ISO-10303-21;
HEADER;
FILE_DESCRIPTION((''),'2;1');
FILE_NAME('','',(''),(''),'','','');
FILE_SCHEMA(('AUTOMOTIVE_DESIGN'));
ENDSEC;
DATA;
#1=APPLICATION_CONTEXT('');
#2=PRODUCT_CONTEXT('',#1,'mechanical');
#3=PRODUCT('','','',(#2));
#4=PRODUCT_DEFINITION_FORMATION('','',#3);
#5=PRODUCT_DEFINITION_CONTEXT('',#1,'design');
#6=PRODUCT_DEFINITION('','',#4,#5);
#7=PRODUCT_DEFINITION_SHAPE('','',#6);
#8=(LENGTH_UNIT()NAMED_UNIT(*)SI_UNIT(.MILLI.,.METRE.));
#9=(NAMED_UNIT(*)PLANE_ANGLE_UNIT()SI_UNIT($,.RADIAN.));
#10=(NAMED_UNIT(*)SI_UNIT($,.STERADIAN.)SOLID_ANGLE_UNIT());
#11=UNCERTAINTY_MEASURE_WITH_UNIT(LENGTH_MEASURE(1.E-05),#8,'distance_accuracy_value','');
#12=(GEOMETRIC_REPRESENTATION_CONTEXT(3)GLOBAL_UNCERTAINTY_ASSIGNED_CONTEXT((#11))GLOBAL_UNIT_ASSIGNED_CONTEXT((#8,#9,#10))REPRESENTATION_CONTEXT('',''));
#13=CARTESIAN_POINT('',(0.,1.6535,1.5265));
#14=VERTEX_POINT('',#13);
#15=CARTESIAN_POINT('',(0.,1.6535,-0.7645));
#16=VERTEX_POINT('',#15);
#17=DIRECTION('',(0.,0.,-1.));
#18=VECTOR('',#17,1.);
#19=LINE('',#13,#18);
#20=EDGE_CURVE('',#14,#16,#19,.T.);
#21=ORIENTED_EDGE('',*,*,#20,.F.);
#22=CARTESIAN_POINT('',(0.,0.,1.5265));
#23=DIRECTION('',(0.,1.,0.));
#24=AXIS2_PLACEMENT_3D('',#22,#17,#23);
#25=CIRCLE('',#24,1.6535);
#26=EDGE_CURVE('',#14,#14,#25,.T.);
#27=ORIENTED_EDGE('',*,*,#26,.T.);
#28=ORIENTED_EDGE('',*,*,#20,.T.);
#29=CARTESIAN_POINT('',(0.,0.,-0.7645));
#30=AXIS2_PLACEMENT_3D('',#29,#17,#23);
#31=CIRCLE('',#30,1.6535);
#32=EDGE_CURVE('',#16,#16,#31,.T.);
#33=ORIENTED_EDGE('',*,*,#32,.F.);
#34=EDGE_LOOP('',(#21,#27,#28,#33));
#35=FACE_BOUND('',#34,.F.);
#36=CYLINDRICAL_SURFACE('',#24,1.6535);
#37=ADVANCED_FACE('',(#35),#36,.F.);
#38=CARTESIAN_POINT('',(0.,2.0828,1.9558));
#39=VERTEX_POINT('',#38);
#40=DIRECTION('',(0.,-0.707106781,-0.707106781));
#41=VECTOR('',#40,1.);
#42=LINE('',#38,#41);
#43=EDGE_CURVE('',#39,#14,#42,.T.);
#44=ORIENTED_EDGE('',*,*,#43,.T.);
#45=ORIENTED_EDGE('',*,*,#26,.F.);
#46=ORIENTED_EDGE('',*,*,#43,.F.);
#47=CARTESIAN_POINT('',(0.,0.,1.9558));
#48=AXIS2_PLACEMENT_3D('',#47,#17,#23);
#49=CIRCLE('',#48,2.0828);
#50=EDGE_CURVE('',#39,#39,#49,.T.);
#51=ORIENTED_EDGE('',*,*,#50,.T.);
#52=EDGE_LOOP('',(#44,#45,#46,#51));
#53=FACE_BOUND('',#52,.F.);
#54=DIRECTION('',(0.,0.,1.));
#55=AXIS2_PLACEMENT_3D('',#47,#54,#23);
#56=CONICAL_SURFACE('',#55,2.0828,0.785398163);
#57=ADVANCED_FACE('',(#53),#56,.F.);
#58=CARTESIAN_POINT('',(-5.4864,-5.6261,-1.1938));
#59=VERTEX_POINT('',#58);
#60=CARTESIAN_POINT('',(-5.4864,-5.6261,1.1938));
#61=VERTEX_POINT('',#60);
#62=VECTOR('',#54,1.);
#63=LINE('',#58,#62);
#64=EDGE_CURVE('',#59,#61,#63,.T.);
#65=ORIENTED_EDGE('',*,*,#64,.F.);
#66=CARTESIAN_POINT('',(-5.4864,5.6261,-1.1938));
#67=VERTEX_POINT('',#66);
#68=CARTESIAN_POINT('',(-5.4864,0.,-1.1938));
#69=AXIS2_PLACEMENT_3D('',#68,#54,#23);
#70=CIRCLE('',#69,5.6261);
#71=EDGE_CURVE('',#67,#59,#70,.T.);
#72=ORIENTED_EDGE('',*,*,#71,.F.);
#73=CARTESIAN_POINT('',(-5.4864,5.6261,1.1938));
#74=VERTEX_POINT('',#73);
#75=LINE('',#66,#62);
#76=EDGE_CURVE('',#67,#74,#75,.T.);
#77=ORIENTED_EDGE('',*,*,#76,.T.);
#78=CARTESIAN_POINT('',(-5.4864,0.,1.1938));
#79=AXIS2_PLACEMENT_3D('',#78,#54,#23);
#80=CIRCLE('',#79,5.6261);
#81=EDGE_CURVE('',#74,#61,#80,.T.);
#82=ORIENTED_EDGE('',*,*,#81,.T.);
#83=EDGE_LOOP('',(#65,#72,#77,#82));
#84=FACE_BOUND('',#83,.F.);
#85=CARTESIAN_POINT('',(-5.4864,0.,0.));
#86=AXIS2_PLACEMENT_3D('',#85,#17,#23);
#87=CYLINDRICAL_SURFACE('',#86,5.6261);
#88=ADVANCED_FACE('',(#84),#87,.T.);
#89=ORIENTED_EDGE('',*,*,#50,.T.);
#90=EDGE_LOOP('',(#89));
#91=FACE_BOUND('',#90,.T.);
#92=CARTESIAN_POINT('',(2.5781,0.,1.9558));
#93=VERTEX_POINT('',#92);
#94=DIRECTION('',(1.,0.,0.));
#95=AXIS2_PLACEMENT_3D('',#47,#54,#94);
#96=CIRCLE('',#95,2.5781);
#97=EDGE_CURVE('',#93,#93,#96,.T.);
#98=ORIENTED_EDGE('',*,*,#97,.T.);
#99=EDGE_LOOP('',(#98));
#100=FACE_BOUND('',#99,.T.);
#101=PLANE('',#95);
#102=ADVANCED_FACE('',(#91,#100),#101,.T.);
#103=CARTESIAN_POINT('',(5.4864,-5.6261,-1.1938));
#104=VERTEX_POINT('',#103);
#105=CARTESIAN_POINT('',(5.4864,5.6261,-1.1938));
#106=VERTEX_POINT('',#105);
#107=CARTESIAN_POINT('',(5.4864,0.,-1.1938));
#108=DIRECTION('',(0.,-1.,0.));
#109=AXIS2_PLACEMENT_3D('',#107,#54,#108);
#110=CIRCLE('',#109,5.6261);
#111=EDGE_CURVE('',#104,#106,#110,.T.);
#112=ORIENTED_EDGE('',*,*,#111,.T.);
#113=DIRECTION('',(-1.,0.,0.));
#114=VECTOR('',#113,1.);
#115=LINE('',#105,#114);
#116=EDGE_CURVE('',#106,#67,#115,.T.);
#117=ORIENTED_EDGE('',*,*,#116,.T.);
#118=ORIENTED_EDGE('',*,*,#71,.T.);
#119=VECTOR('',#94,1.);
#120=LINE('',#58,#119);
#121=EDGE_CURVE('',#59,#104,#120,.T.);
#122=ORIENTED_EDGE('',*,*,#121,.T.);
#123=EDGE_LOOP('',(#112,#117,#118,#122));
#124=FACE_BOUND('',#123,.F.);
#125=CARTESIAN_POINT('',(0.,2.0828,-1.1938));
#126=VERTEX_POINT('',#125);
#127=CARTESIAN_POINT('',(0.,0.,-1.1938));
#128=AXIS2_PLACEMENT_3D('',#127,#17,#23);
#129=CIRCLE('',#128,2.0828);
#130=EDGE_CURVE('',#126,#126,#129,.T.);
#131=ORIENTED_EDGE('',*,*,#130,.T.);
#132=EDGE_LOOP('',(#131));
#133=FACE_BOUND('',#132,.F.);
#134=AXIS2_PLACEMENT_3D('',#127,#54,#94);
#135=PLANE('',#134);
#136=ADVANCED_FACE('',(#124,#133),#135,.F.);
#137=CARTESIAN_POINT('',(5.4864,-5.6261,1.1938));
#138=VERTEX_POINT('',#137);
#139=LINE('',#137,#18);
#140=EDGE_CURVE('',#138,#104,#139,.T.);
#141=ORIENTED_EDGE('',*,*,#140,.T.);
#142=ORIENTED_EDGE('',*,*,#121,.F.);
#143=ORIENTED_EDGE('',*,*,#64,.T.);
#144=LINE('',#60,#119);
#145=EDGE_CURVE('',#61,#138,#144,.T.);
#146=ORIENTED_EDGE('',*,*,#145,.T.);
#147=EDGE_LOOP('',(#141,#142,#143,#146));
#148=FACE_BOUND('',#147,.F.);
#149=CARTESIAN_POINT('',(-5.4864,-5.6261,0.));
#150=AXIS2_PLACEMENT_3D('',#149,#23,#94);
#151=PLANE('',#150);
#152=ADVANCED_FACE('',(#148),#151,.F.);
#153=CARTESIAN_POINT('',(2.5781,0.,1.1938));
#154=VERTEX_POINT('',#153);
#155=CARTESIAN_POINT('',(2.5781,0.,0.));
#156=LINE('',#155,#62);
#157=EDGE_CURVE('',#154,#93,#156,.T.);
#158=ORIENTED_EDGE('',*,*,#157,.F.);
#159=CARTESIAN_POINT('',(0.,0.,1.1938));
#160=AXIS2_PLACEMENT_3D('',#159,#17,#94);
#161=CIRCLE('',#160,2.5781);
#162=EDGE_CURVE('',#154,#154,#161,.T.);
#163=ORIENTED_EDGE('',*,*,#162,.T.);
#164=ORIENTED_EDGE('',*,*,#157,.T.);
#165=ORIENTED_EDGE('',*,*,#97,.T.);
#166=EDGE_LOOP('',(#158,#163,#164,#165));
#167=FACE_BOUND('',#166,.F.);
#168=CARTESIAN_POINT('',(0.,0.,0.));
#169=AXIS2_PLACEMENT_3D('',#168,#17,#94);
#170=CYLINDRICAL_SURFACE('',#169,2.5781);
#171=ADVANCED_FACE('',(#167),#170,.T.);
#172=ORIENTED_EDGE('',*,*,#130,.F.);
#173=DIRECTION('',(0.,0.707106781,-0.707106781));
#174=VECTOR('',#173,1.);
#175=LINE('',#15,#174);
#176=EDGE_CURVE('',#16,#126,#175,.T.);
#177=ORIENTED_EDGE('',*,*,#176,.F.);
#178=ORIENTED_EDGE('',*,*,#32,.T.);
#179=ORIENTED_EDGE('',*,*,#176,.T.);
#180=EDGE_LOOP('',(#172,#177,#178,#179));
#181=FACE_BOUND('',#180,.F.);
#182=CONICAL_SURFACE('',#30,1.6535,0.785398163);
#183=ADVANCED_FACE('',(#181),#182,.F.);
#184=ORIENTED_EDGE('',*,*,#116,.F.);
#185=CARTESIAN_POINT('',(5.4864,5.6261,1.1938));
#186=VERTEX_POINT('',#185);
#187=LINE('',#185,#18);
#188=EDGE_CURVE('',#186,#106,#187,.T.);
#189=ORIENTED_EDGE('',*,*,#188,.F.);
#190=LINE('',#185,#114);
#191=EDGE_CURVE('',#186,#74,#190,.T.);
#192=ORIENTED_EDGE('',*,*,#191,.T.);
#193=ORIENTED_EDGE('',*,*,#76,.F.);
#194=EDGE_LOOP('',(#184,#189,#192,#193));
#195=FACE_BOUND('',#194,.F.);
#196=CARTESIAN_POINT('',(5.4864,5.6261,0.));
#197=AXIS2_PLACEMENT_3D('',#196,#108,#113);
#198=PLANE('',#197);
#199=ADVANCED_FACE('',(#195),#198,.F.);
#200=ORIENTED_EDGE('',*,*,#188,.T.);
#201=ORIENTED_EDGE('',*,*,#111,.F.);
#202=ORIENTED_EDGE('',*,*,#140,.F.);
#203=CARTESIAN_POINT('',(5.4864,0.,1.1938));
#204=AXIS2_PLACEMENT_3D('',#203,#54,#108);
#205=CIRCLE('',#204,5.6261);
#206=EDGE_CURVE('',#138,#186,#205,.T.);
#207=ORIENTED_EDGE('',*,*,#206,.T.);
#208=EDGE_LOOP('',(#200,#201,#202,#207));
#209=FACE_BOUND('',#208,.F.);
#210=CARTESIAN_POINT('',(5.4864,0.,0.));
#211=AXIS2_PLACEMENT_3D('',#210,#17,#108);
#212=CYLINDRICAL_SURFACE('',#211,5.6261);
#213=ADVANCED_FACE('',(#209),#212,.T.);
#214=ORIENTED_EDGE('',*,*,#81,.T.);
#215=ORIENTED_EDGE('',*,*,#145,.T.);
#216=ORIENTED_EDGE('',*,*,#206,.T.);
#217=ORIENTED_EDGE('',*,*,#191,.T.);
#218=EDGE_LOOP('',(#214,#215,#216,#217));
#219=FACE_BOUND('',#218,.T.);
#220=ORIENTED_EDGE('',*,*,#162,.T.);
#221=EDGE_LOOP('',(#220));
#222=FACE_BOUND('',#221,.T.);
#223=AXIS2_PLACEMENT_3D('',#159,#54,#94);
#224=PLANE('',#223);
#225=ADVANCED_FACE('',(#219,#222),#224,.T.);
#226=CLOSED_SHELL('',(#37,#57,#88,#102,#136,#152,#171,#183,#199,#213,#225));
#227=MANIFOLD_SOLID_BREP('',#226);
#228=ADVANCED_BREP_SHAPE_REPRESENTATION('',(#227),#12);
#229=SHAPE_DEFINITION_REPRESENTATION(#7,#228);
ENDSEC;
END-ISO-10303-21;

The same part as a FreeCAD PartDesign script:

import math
import FreeCAD as App
import Part
import Sketcher
from FreeCAD import Vector
Q = App.Units.Quantity


def add_polygon(sketch, points):
    """Adds a closed chain of lines whose ends are joined by coincident constraints."""
    first, n = sketch.GeometryCount, len(points)
    for a, b in zip(points, points[1:] + points[:1]):
        sketch.addGeometry(Part.LineSegment(App.Vector(*a, 0), App.Vector(*b, 0)), False)
    for i in range(n):
        sketch.addConstraint(Sketcher.Constraint("Coincident", first + i, 2, first + (i + 1) % n, 1))

doc = App.newDocument("Part")
body = doc.addObject("PartDesign::Body", "Body")

sketch1 = body.newObject("Sketcher::SketchObject", "Sketch")
sketch1.AttachmentSupport = (doc.getObject("XY_Plane"), [""])
sketch1.MapMode = "FlatFace"
sketch1.addGeometry([
    Part.LineSegment(Vector(5, 6, 0), Vector(-5, 6, 0)),
    Part.ArcOfCircle(Part.Circle(Vector(-5, 0, 0), Vector(0, 0, 1), 6), math.radians(90), math.radians(270)),
    Part.LineSegment(Vector(-5, -6, 0), Vector(5, -6, 0)),
    Part.ArcOfCircle(Part.Circle(Vector(5, 0, 0), Vector(0, 0, 1), 6), math.radians(-90), math.radians(90)),
], False)
sketch1.addConstraint([
    Sketcher.Constraint("Tangent", 0, 2, 1, 1),
    Sketcher.Constraint("Tangent", 1, 2, 2, 1),
    Sketcher.Constraint("Tangent", 2, 2, 3, 1),
    Sketcher.Constraint("Tangent", 3, 2, 0, 1),
    Sketcher.Constraint("Horizontal", 0),
    Sketcher.Constraint("Horizontal", 2),
    Sketcher.Constraint("Symmetric", 1, 3, 3, 3, -1, 1),
    Sketcher.Constraint("Radius", 1, Q("0.2215 in")),
    Sketcher.Constraint("DistanceX", 0, 2, 0, 1, Q("0.432 in")),
])
pad1 = body.newObject("PartDesign::Pad", "Pad")
pad1.Profile = sketch1
pad1.Length = Q("0.094 in")
pad1.Midplane = True

sketch2 = body.newObject("Sketcher::SketchObject", "Sketch001")
sketch2.AttachmentSupport = (doc.getObject("XY_Plane"), [""])
sketch2.MapMode = "FlatFace"
sketch2.addGeometry(Part.Circle(Vector(0, 0, 0), Vector(0, 0, 1), 2.6), False)
sketch2.addConstraint([
    Sketcher.Constraint("Coincident", 0, 3, -1, 1),
    Sketcher.Constraint("Diameter", 0, Q("0.203 in")),
])
pad2 = body.newObject("PartDesign::Pad", "Pad001")
pad2.Profile = sketch2
pad2.Length = Q("0.077 in")

sketch3 = body.newObject("Sketcher::SketchObject", "Sketch002")
sketch3.AttachmentSupport = (doc.getObject("YZ_Plane"), [""])
sketch3.MapMode = "FlatFace"
add_polygon(sketch3, [(0, 2), (0, -1.2), (2.1, -1.2), (1.7, -0.8), (1.7, 1.5), (2.1, 2)])
sketch3.addConstraint([
    Sketcher.Constraint("Vertical", 0),
    Sketcher.Constraint("Horizontal", 1),
    Sketcher.Constraint("Vertical", 3),
    Sketcher.Constraint("Horizontal", 5),
    Sketcher.Constraint("PointOnObject", 0, 2, -2),
    Sketcher.Constraint("Perpendicular", 2, 4),
    Sketcher.Constraint("Vertical", 1, 2, 4, 2),
    Sketcher.Constraint("Equal", 2, 4),
    Sketcher.Constraint("DistanceX", 1, 1, 1, 2, Q("0.082 in")),
    Sketcher.Constraint("DistanceY", 0, 2, 0, 1, Q("0.124 in")),
    Sketcher.Constraint("DistanceY", 3, 1, 3, 2, Q("0.0902 in")),
    Sketcher.Constraint("DistanceY", 0, 2, -1, 1, Q("0.047 in")),
])
groove = body.newObject("PartDesign::Groove", "Groove")
groove.Profile = sketch3
groove.ReferenceAxis = (sketch3, ["V_Axis"])
groove.Angle = 360

doc.recompute()
